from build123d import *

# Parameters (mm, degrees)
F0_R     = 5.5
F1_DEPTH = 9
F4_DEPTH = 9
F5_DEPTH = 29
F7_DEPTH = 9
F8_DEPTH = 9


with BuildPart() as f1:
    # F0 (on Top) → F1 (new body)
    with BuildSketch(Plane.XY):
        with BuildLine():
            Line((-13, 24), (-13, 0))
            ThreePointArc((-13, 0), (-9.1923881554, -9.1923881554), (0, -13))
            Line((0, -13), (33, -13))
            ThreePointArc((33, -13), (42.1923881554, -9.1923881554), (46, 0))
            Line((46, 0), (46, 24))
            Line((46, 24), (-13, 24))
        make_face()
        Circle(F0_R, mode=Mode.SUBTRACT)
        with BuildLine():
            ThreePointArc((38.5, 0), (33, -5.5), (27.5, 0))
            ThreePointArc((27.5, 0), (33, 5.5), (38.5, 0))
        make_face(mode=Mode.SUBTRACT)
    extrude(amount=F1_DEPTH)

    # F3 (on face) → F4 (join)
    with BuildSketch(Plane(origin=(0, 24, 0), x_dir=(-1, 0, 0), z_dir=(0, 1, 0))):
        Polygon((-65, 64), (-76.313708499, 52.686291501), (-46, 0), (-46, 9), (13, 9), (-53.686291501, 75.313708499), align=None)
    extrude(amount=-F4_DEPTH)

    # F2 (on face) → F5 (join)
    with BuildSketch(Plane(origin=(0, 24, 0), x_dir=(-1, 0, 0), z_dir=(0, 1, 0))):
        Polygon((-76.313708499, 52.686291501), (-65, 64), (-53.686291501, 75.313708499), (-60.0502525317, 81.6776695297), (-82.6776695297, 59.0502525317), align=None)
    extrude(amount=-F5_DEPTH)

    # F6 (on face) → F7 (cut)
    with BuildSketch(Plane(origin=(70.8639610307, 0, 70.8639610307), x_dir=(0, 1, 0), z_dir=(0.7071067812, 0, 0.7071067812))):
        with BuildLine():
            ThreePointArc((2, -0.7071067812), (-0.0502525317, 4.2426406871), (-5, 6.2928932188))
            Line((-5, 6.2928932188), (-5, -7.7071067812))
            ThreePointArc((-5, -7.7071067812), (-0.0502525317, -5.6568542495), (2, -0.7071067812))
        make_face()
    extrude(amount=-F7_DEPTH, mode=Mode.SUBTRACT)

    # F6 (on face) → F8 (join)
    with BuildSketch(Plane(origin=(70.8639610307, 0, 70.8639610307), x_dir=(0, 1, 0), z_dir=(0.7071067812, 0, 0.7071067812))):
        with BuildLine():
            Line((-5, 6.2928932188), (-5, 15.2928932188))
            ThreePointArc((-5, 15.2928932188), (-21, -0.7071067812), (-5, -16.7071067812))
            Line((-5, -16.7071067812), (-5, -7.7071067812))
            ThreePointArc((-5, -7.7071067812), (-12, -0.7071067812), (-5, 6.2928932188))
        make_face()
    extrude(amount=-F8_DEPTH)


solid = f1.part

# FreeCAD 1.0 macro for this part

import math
import FreeCAD as App
import Part
import Sketcher
from FreeCAD import Vector
Q = App.Units.Quantity

doc = App.newDocument("Part")
params = doc.addObject("Spreadsheet::Sheet", "Params")
for row, (alias, value) in enumerate([
    ("sketch1_diameter", "11 mm"),
    ("sketch1_radius", "13 mm"),
    ("sketch1_width", "33 mm"),
    ("sketch1_height", "24 mm"),
    ("pad1_length", "9 mm"),
    ("sketch2_width", "59 mm"),
    ("sketch2_height", "9 mm"),
    ("sketch2_length", "32 mm"),
    ("pad2_length", "9 mm"),
    ("sketch3_length", "32 mm"),
    ("sketch3_length2", "9 mm"),
    ("pad3_length", "29 mm"),
    ("sketch4_radius", "7 mm"),
    ("pocket1_length", "9 mm"),
    ("sketch5_radius", "16 mm"),
    ("sketch5_radius2", "7 mm"),
    ("pad4_length", "9 mm"),
], start=1):
    params.set(f"A{row}", alias)
    params.set(f"B{row}", "=" + value)
    params.setAlias(f"B{row}", alias)

body = doc.addObject("PartDesign::Body", "Body")

# Sketch on XY plane
sketch1 = body.newObject("Sketcher::SketchObject", "Sketch")
sketch1.AttachmentSupport = (doc.getObject("XY_Plane"), [""])
sketch1.MapMode = "FlatFace"
sketch1.addGeometry(Part.LineSegment(Vector(-13, 24, 0), Vector(-13, 0, 0)), False)
sketch1.addGeometry(Part.ArcOfCircle(Part.Circle(Vector(0, 0, 0), Vector(0, 0, 1), 13), math.radians(180), math.radians(270)), False)
sketch1.addGeometry(Part.LineSegment(Vector(0, -13, 0), Vector(33, -13, 0)), False)
sketch1.addGeometry(Part.ArcOfCircle(Part.Circle(Vector(33, 0, 0), Vector(0, 0, 1), 13), math.radians(-90), math.radians(0)), False)
sketch1.addGeometry(Part.LineSegment(Vector(46, 0, 0), Vector(46, 24, 0)), False)
sketch1.addGeometry(Part.LineSegment(Vector(46, 24, 0), Vector(-13, 24, 0)), False)
sketch1.addGeometry(Part.Circle(Vector(0, 0, 0), Vector(0, 0, 1), 6), False)
sketch1.addGeometry(Part.Circle(Vector(33, 0, 0), Vector(0, 0, 1), 6), False)
sketch1.addConstraint(Sketcher.Constraint("Tangent", 0, 2, 1, 1))
sketch1.addConstraint(Sketcher.Constraint("Tangent", 1, 2, 2, 1))
sketch1.addConstraint(Sketcher.Constraint("Tangent", 2, 2, 3, 1))
sketch1.addConstraint(Sketcher.Constraint("Tangent", 3, 2, 4, 1))
sketch1.addConstraint(Sketcher.Constraint("Coincident", 4, 2, 5, 1))
sketch1.addConstraint(Sketcher.Constraint("Coincident", 5, 2, 0, 1))
sketch1.addConstraint(Sketcher.Constraint("Vertical", 0))
sketch1.addConstraint(Sketcher.Constraint("Horizontal", 2))
sketch1.addConstraint(Sketcher.Constraint("Vertical", 4))
sketch1.addConstraint(Sketcher.Constraint("Horizontal", 5))
sketch1.addConstraint(Sketcher.Constraint("Coincident", 1, 3, -1, 1))
sketch1.addConstraint(Sketcher.Constraint("Coincident", 6, 3, -1, 1))
sketch1.addConstraint(Sketcher.Constraint("Coincident", 7, 3, 3, 3))
sketch1.addConstraint(Sketcher.Constraint("Equal", 1, 3))
sketch1.addConstraint(Sketcher.Constraint("Equal", 6, 7))
sketch1.addConstraint(Sketcher.Constraint("Diameter", 6, 11.0))
sketch1.addConstraint(Sketcher.Constraint("Radius", 1, 13.0))
sketch1.addConstraint(Sketcher.Constraint("DistanceX", 2, 1, 2, 2, 33.0))
sketch1.addConstraint(Sketcher.Constraint("DistanceY", 0, 2, 0, 1, 24.0))
sketch1.setExpression("Constraints[15]", "Params.sketch1_diameter")
sketch1.setExpression("Constraints[16]", "Params.sketch1_radius")
sketch1.setExpression("Constraints[17]", "Params.sketch1_width")
sketch1.setExpression("Constraints[18]", "Params.sketch1_height")
pad1 = body.newObject("PartDesign::Pad", "Pad")
pad1.Profile = sketch1
pad1.setExpression("Length", "Params.pad1_length")

# Sketch on XZ plane
sketch2 = body.newObject("Sketcher::SketchObject", "Sketch001")
sketch2.AttachmentSupport = (doc.getObject("XZ_Plane"), [""])
sketch2.MapMode = "FlatFace"
sketch2.AttachmentOffset = App.Placement(Vector(0, 0, -24), App.Rotation())
sketch2.addGeometry(Part.LineSegment(Vector(76, 53, 0), Vector(46, 0, 0)), False)
sketch2.addGeometry(Part.LineSegment(Vector(46, 0, 0), Vector(46, 9, 0)), False)
sketch2.addGeometry(Part.LineSegment(Vector(46, 9, 0), Vector(-13, 9, 0)), False)
sketch2.addGeometry(Part.LineSegment(Vector(-13, 9, 0), Vector(54, 75, 0)), False)
sketch2.addGeometry(Part.LineSegment(Vector(54, 75, 0), Vector(76, 53, 0)), False)
sketch2.addConstraint(Sketcher.Constraint("Coincident", 0, 2, 1, 1))
sketch2.addConstraint(Sketcher.Constraint("Coincident", 1, 2, 2, 1))
sketch2.addConstraint(Sketcher.Constraint("Coincident", 2, 2, 3, 1))
sketch2.addConstraint(Sketcher.Constraint("Coincident", 3, 2, 4, 1))
sketch2.addConstraint(Sketcher.Constraint("Coincident", 4, 2, 0, 1))
sketch2.addConstraint(Sketcher.Constraint("Vertical", 1))
sketch2.addConstraint(Sketcher.Constraint("Horizontal", 2))
sketch2.addConstraint(Sketcher.Constraint("PointOnObject", 0, 2, -1))
sketch2.addConstraint(Sketcher.Constraint("DistanceX", 2, 2, 2, 1, 59.0))
sketch2.addConstraint(Sketcher.Constraint("DistanceY", 1, 1, 1, 2, 9.0))
sketch2.addConstraint(Sketcher.Constraint("Angle", 4, Q("-45 deg")))
sketch2.addConstraint(Sketcher.Constraint("Distance", 4, 32.0))
sketch2.addConstraint(Sketcher.Constraint("DistanceX", -1, 1, 0, 2, 46.0))
sketch2.addConstraint(Sketcher.Constraint("Distance", 0, 60.784589))
sketch2.addConstraint(Sketcher.Constraint("Distance", 3, 94.045571))
sketch2.setExpression("Constraints[8]", "Params.sketch2_width")
sketch2.setExpression("Constraints[9]", "Params.sketch2_height")
sketch2.setExpression("Constraints[11]", "Params.sketch2_length")
pad2 = body.newObject("PartDesign::Pad", "Pad001")
pad2.Profile = sketch2
pad2.setExpression("Length", "Params.pad2_length")

# Sketch on XZ plane
sketch3 = body.newObject("Sketcher::SketchObject", "Sketch002")
sketch3.AttachmentSupport = (doc.getObject("XZ_Plane"), [""])
sketch3.MapMode = "FlatFace"
sketch3.AttachmentOffset = App.Placement(Vector(0, 0, -24), App.Rotation())
sketch3.addGeometry(Part.LineSegment(Vector(76, 53, 0), Vector(54, 75, 0)), False)
sketch3.addGeometry(Part.LineSegment(Vector(54, 75, 0), Vector(60, 82, 0)), False)
sketch3.addGeometry(Part.LineSegment(Vector(60, 82, 0), Vector(83, 59, 0)), False)
sketch3.addGeometry(Part.LineSegment(Vector(83, 59, 0), Vector(76, 53, 0)), False)
sketch3.addConstraint(Sketcher.Constraint("Coincident", 0, 2, 1, 1))
sketch3.addConstraint(Sketcher.Constraint("Coincident", 1, 2, 2, 1))
sketch3.addConstraint(Sketcher.Constraint("Coincident", 2, 2, 3, 1))
sketch3.addConstraint(Sketcher.Constraint("Coincident", 3, 2, 0, 1))
sketch3.addConstraint(Sketcher.Constraint("Perpendicular", 0, 1))
sketch3.addConstraint(Sketcher.Constraint("Perpendicular", 1, 2))
sketch3.addConstraint(Sketcher.Constraint("Perpendicular", 2, 3))
sketch3.addConstraint(Sketcher.Constraint("Angle", 0, Q("135 deg")))
sketch3.addConstraint(Sketcher.Constraint("Distance", 0, 32.0))
sketch3.addConstraint(Sketcher.Constraint("Distance", 1, 9.0))
sketch3.addConstraint(Sketcher.Constraint("DistanceX", -1, 1, 0, 2, 53.686292))
sketch3.addConstraint(Sketcher.Constraint("DistanceY", -1, 1, 0, 2, 75.313708))
sketch3.setExpression("Constraints[8]", "Params.sketch3_length")
sketch3.setExpression("Constraints[9]", "Params.sketch3_length2")
pad3 = body.newObject("PartDesign::Pad", "Pad002")
pad3.Profile = sketch3
pad3.setExpression("Length", "Params.pad3_length")

# Sketch on an angled plane
sketch4 = body.newObject("Sketcher::SketchObject", "Sketch003")
sketch4.Placement = App.Placement(Vector(70.863961, 0, 70.863961), App.Rotation(Vector(0, 1, 0), Vector(-0.707106781, 0, 0.707106781), Vector(0.707106781, 0, 0.707106781), "ZXY"))
sketch4.addGeometry(Part.ArcOfCircle(Part.Circle(Vector(-5, -1, 0), Vector(0, 0, 1), 7), math.radians(0), math.radians(90)), False)
sketch4.addGeometry(Part.LineSegment(Vector(-5, 6, 0), Vector(-5, -8, 0)), False)
sketch4.addGeometry(Part.ArcOfCircle(Part.Circle(Vector(-5, -1, 0), Vector(0, 0, 1), 7), math.radians(-90), math.radians(0)), False)
sketch4.addConstraint(Sketcher.Constraint("Coincident", 0, 2, 1, 1))
sketch4.addConstraint(Sketcher.Constraint("Coincident", 1, 2, 2, 1))
sketch4.addConstraint(Sketcher.Constraint("Tangent", 2, 2, 0, 1))
sketch4.addConstraint(Sketcher.Constraint("Vertical", 1))
sketch4.addConstraint(Sketcher.Constraint("Equal", 0, 2))
sketch4.addConstraint(Sketcher.Constraint("Horizontal", 0, 3, 2, 2))
sketch4.addConstraint(Sketcher.Constraint("Vertical", 2, 3, 0, 2))
sketch4.addConstraint(Sketcher.Constraint("Radius", 0, 7.0))
sketch4.addConstraint(Sketcher.Constraint("DistanceX", 0, 3, -1, 1, 5.0))
sketch4.addConstraint(Sketcher.Constraint("DistanceY", 0, 3, -1, 1, 0.707107))
sketch4.setExpression("Constraints[7]", "Params.sketch4_radius")
pocket1 = body.newObject("PartDesign::Pocket", "Pocket")
pocket1.Profile = sketch4
pocket1.setExpression("Length", "Params.pocket1_length")

# Sketch on an angled plane
sketch5 = body.newObject("Sketcher::SketchObject", "Sketch004")
sketch5.Placement = App.Placement(Vector(70.863961, 0, 70.863961), App.Rotation(Vector(0, 1, 0), Vector(-0.707106781, 0, 0.707106781), Vector(0.707106781, 0, 0.707106781), "ZXY"))
sketch5.addGeometry(Part.LineSegment(Vector(-5, 6, 0), Vector(-5, 15, 0)), False)
sketch5.addGeometry(Part.ArcOfCircle(Part.Circle(Vector(-5, -1, 0), Vector(0, 0, 1), 16), math.radians(90), math.radians(270)), False)
sketch5.addGeometry(Part.LineSegment(Vector(-5, -17, 0), Vector(-5, -8, 0)), False)
sketch5.addGeometry(Part.ArcOfCircle(Part.Circle(Vector(-5, -1, 0), Vector(0, 0, 1), 7), math.radians(90), math.radians(270)), False)
sketch5.addConstraint(Sketcher.Constraint("Coincident", 0, 2, 1, 1))
sketch5.addConstraint(Sketcher.Constraint("Coincident", 1, 2, 2, 1))
sketch5.addConstraint(Sketcher.Constraint("Coincident", 2, 2, 3, 2))
sketch5.addConstraint(Sketcher.Constraint("Coincident", 3, 1, 0, 1))
sketch5.addConstraint(Sketcher.Constraint("Vertical", 0))
sketch5.addConstraint(Sketcher.Constraint("Vertical", 2))
sketch5.addConstraint(Sketcher.Constraint("Coincident", 3, 3, 1, 3))
sketch5.addConstraint(Sketcher.Constraint("Vertical", 3, 3, 0, 2))
sketch5.addConstraint(Sketcher.Constraint("Vertical", 0, 2, 1, 2))
sketch5.addConstraint(Sketcher.Constraint("Radius", 1, 16.0))
sketch5.addConstraint(Sketcher.Constraint("Radius", 3, 7.0))
sketch5.addConstraint(Sketcher.Constraint("DistanceX", 1, 3, -1, 1, 5.0))
sketch5.addConstraint(Sketcher.Constraint("DistanceY", 1, 3, -1, 1, 0.707107))
sketch5.setExpression("Constraints[9]", "Params.sketch5_radius")
sketch5.setExpression("Constraints[10]", "Params.sketch5_radius2")
pad4 = body.newObject("PartDesign::Pad", "Pad003")
pad4.Profile = sketch5
pad4.setExpression("Length", "Params.pad4_length")
pad4.Reversed = True

doc.recompute()
